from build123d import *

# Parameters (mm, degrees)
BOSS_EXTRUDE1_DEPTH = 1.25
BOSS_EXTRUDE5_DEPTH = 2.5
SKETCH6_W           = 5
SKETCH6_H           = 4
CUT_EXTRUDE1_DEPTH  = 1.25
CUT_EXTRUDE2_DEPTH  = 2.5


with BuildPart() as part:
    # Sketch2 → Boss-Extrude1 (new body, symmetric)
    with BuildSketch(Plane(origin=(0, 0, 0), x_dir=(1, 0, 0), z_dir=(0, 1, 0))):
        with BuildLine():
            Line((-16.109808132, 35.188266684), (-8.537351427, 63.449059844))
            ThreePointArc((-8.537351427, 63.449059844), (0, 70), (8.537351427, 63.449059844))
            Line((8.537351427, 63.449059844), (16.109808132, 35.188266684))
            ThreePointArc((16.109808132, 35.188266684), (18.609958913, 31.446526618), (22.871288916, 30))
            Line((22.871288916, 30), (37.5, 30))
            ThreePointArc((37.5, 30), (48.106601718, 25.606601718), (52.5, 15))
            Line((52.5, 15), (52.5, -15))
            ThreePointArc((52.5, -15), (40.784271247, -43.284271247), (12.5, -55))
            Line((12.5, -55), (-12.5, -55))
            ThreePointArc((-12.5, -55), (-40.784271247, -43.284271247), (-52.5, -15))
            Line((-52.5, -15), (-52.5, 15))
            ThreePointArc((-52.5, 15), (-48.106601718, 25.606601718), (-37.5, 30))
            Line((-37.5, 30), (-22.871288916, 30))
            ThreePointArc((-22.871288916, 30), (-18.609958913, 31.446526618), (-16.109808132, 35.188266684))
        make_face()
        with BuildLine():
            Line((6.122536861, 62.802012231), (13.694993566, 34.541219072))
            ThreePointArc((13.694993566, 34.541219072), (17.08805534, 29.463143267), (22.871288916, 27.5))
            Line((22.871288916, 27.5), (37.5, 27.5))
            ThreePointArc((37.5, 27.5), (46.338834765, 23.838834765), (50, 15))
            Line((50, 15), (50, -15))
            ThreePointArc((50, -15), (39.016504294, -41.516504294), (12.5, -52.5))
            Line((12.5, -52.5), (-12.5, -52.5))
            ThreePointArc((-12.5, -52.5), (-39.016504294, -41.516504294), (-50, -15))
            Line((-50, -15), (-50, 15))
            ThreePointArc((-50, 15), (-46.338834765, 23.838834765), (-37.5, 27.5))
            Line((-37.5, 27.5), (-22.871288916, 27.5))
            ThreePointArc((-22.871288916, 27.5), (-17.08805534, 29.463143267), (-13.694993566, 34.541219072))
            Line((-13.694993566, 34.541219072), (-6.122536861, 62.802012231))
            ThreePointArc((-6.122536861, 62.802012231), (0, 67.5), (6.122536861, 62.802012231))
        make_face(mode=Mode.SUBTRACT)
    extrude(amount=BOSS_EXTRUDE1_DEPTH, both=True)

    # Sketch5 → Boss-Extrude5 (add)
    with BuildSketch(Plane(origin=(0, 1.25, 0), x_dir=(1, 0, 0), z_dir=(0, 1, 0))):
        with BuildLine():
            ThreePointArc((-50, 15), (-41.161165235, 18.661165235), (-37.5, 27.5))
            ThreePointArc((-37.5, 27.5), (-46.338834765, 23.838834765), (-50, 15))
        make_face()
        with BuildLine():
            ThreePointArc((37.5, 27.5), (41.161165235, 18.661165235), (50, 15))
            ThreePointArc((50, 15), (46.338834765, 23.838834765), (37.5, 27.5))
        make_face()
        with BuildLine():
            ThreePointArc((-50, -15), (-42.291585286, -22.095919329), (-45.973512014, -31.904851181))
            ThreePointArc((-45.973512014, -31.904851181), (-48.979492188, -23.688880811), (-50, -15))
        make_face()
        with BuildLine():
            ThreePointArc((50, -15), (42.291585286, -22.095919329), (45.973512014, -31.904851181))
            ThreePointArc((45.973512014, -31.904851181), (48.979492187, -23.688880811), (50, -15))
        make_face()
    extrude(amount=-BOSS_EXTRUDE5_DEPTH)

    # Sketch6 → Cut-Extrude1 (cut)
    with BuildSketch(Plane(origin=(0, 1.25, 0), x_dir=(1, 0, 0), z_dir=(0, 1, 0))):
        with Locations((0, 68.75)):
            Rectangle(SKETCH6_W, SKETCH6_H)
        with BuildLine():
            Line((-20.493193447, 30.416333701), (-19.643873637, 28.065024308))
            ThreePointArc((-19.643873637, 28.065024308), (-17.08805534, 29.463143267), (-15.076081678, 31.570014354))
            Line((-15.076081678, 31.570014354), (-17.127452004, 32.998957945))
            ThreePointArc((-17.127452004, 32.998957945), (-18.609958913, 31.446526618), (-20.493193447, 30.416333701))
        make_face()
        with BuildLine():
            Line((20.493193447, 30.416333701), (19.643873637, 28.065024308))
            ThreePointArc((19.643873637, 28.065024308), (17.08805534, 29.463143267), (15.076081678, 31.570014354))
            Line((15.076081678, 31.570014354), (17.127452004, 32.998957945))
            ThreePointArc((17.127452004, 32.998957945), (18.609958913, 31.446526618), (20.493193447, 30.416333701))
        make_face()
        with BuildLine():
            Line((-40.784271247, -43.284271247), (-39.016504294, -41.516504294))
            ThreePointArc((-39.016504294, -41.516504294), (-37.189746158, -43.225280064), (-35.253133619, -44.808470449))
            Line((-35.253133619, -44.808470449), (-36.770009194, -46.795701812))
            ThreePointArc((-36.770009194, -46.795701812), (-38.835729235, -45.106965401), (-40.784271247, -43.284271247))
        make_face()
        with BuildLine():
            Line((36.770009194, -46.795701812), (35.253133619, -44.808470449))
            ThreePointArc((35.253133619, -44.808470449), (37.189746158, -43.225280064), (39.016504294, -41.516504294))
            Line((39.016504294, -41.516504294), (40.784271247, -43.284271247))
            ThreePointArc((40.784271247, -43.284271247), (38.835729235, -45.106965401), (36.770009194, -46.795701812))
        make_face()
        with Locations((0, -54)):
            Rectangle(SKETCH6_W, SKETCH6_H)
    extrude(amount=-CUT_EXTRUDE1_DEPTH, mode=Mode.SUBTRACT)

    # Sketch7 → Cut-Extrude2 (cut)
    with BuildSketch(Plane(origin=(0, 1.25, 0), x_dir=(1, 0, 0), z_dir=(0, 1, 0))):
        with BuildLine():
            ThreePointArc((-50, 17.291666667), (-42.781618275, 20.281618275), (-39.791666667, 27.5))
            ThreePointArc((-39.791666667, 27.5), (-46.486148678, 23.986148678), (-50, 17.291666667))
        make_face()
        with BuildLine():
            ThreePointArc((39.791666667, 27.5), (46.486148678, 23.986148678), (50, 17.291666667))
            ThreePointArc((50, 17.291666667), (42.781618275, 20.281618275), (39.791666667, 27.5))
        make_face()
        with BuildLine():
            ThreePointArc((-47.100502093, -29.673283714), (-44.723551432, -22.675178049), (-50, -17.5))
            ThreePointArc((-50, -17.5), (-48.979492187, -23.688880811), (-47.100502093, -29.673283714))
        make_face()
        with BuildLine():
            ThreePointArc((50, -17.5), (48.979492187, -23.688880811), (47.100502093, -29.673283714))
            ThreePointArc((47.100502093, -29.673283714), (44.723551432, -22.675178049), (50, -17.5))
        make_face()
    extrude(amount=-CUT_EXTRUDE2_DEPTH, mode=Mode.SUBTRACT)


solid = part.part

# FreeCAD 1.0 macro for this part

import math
import FreeCAD as App
import Part
import Sketcher
Q = App.Units.Quantity


def add_polygon(sketch, points):
    """Adds a closed chain of lines whose ends are joined by coincident constraints."""
    first, n = sketch.GeometryCount, len(points)
    for a, b in zip(points, points[1:] + points[:1]):
        sketch.addGeometry(Part.LineSegment(App.Vector(*a, 0), App.Vector(*b, 0)), False)
    for i in range(n):
        sketch.addConstraint(Sketcher.Constraint("Coincident", first + i, 2, first + (i + 1) % n, 1))

doc = App.newDocument("Part")
body = doc.addObject("PartDesign::Body", "Body")

sketch1 = doc.addObject("Sketcher::SketchObject", "Sketch")
body.addObject(sketch1)
sketch1.AttachmentSupport = (doc.XZ_Plane, [""])
sketch1.MapMode = "FlatFace"
sketch1.addGeometry([
    Part.LineSegment(App.Vector(-9, -63, 0), App.Vector(-16, -35, 0)),
    Part.ArcOfCircle(Part.Circle(App.Vector(-23, -37, 0), App.Vector(0, 0, 1), 7), math.radians(15), math.radians(90)),
    Part.LineSegment(App.Vector(-23, -30, 0), App.Vector(-38, -30, 0)),
    Part.ArcOfCircle(Part.Circle(App.Vector(-38, -15, 0), App.Vector(0, 0, 1), 15), math.radians(180), math.radians(270)),
    Part.LineSegment(App.Vector(-52, -15, 0), App.Vector(-52, 15, 0)),
    Part.ArcOfCircle(Part.Circle(App.Vector(-12, 15, 0), App.Vector(0, 0, 1), 40), math.radians(90), math.radians(180)),
    Part.LineSegment(App.Vector(-12, 55, 0), App.Vector(12, 55, 0)),
    Part.ArcOfCircle(Part.Circle(App.Vector(12, 15, 0), App.Vector(0, 0, 1), 40), math.radians(0), math.radians(90)),
    Part.LineSegment(App.Vector(52, 15, 0), App.Vector(52, -15, 0)),
    Part.ArcOfCircle(Part.Circle(App.Vector(38, -15, 0), App.Vector(0, 0, 1), 15), math.radians(-90), math.radians(0)),
    Part.LineSegment(App.Vector(38, -30, 0), App.Vector(23, -30, 0)),
    Part.ArcOfCircle(Part.Circle(App.Vector(23, -37, 0), App.Vector(0, 0, 1), 7), math.radians(90), math.radians(165)),
    Part.LineSegment(App.Vector(16, -35, 0), App.Vector(9, -63, 0)),
    Part.ArcOfCircle(Part.Circle(App.Vector(0, -61, 0), App.Vector(0, 0, 1), 9), math.radians(-165), math.radians(-15)),
    Part.LineSegment(App.Vector(6, -63, 0), App.Vector(14, -35, 0)),
    Part.ArcOfCircle(Part.Circle(App.Vector(23, -37, 0), App.Vector(0, 0, 1), 9), math.radians(90), math.radians(165)),
    Part.LineSegment(App.Vector(23, -28, 0), App.Vector(38, -28, 0)),
    Part.ArcOfCircle(Part.Circle(App.Vector(38, -15, 0), App.Vector(0, 0, 1), 12), math.radians(-90), math.radians(0)),
    Part.LineSegment(App.Vector(50, -15, 0), App.Vector(50, 15, 0)),
    Part.ArcOfCircle(Part.Circle(App.Vector(12, 15, 0), App.Vector(0, 0, 1), 38), math.radians(0), math.radians(90)),
    Part.LineSegment(App.Vector(12, 52, 0), App.Vector(-12, 52, 0)),
    Part.ArcOfCircle(Part.Circle(App.Vector(-12, 15, 0), App.Vector(0, 0, 1), 38), math.radians(90), math.radians(180)),
    Part.LineSegment(App.Vector(-50, 15, 0), App.Vector(-50, -15, 0)),
    Part.ArcOfCircle(Part.Circle(App.Vector(-38, -15, 0), App.Vector(0, 0, 1), 12), math.radians(180), math.radians(270)),
    Part.LineSegment(App.Vector(-38, -28, 0), App.Vector(-23, -28, 0)),
    Part.ArcOfCircle(Part.Circle(App.Vector(-23, -37, 0), App.Vector(0, 0, 1), 9), math.radians(15), math.radians(90)),
    Part.LineSegment(App.Vector(-14, -35, 0), App.Vector(-6, -63, 0)),
    Part.ArcOfCircle(Part.Circle(App.Vector(0, -61, 0), App.Vector(0, 0, 1), 6), math.radians(-165), math.radians(-15)),
], False)
sketch1.addConstraint([
    Sketcher.Constraint("Tangent", 0, 2, 1, 1),
    Sketcher.Constraint("Tangent", 1, 2, 2, 1),
    Sketcher.Constraint("Tangent", 2, 2, 3, 2),
    Sketcher.Constraint("Tangent", 3, 1, 4, 1),
    Sketcher.Constraint("Tangent", 4, 2, 5, 2),
    Sketcher.Constraint("Tangent", 5, 1, 6, 1),
    Sketcher.Constraint("Tangent", 6, 2, 7, 2),
    Sketcher.Constraint("Tangent", 7, 1, 8, 1),
    Sketcher.Constraint("Tangent", 8, 2, 9, 2),
    Sketcher.Constraint("Tangent", 9, 1, 10, 1),
    Sketcher.Constraint("Tangent", 10, 2, 11, 1),
    Sketcher.Constraint("Tangent", 11, 2, 12, 1),
    Sketcher.Constraint("Tangent", 12, 2, 13, 2),
    Sketcher.Constraint("Tangent", 13, 1, 0, 1),
    Sketcher.Constraint("Tangent", 14, 2, 15, 2),
    Sketcher.Constraint("Tangent", 15, 1, 16, 1),
    Sketcher.Constraint("Tangent", 16, 2, 17, 1),
    Sketcher.Constraint("Tangent", 17, 2, 18, 1),
    Sketcher.Constraint("Tangent", 18, 2, 19, 1),
    Sketcher.Constraint("Tangent", 19, 2, 20, 1),
    Sketcher.Constraint("Tangent", 20, 2, 21, 1),
    Sketcher.Constraint("Tangent", 21, 2, 22, 1),
    Sketcher.Constraint("Tangent", 22, 2, 23, 1),
    Sketcher.Constraint("Tangent", 23, 2, 24, 1),
    Sketcher.Constraint("Tangent", 24, 2, 25, 2),
    Sketcher.Constraint("Tangent", 25, 1, 26, 1),
    Sketcher.Constraint("Tangent", 26, 2, 27, 1),
    Sketcher.Constraint("Tangent", 27, 2, 14, 1),
    Sketcher.Constraint("Horizontal", 2),
    Sketcher.Constraint("Vertical", 4),
    Sketcher.Constraint("Horizontal", 6),
    Sketcher.Constraint("Vertical", 8),
    Sketcher.Constraint("Horizontal", 10),
    Sketcher.Constraint("Horizontal", 16),
    Sketcher.Constraint("Vertical", 18),
    Sketcher.Constraint("Horizontal", 20),
    Sketcher.Constraint("Vertical", 22),
    Sketcher.Constraint("Horizontal", 24),
    Sketcher.Constraint("Coincident", 15, 3, 11, 3),
    Sketcher.Constraint("Coincident", 17, 3, 9, 3),
    Sketcher.Constraint("Coincident", 19, 3, 7, 3),
    Sketcher.Constraint("Coincident", 21, 3, 5, 3),
    Sketcher.Constraint("Coincident", 23, 3, 3, 3),
    Sketcher.Constraint("Coincident", 25, 3, 1, 3),
    Sketcher.Constraint("Coincident", 27, 3, 13, 3),
    Sketcher.Constraint("Equal", 5, 7),
    Sketcher.Constraint("Equal", 3, 9),
    Sketcher.Constraint("Equal", 1, 11),
    Sketcher.Constraint("Symmetric", 3, 1, 7, 1, -1, 1),
    Sketcher.Constraint("Symmetric", 1, 3, 11, 3, -2),
    Sketcher.Constraint("PointOnObject", 13, 3, -2),
    Sketcher.Constraint("Parallel", 12, 14),
    Sketcher.Constraint("Radius", 1, 7.0),
    Sketcher.Constraint("Radius", 3, 15.0),
    Sketcher.Constraint("Radius", 5, 40.0),
    Sketcher.Constraint("Radius", 15, 9.5),
    Sketcher.Constraint("DistanceX", 6, 1, 6, 2, 25.0),
    Sketcher.Constraint("DistanceY", 4, 1, 4, 2, 30.0),
    Sketcher.Constraint("Angle", 0, Q("105 deg")),
    Sketcher.Constraint("Radius", 13, 8.838517),
    Sketcher.Constraint("DistanceX", 2, 2, 2, 1, 14.628711),
])
pad1 = doc.addObject("PartDesign::Pad", "Pad")
body.addObject(pad1)
pad1.Profile = sketch1
pad1.Length = 2.5
pad1.Midplane = True

sketch2 = doc.addObject("Sketcher::SketchObject", "Sketch001")
body.addObject(sketch2)
sketch2.AttachmentSupport = (doc.XZ_Plane, [""])
sketch2.MapMode = "FlatFace"
sketch2.AttachmentOffset = App.Placement(App.Vector(0, 0, -1.25), App.Rotation())
sketch2.addGeometry([
    Part.ArcOfCircle(Part.Circle(App.Vector(-50, -27, 0), App.Vector(0, 0, 1), 12), math.radians(0), math.radians(90)),
    Part.ArcOfCircle(Part.Circle(App.Vector(-38, -15, 0), App.Vector(0, 0, 1), 12), math.radians(180), math.radians(270)),
    Part.ArcOfCircle(Part.Circle(App.Vector(50, -27, 0), App.Vector(0, 0, 1), 12), math.radians(90), math.radians(180)),
    Part.ArcOfCircle(Part.Circle(App.Vector(38, -15, 0), App.Vector(0, 0, 1), 12), math.radians(-90), math.radians(0)),
    Part.ArcOfCircle(Part.Circle(App.Vector(-51, 24, 0), App.Vector(0, 0, 1), 9), math.radians(-81), math.radians(55)),
    Part.ArcOfCircle(Part.Circle(App.Vector(-13, 15, 0), App.Vector(0, 0, 1), 37), math.radians(153), math.radians(180)),
    Part.ArcOfCircle(Part.Circle(App.Vector(51, 24, 0), App.Vector(0, 0, 1), 9), math.radians(125), math.radians(261)),
    Part.ArcOfCircle(Part.Circle(App.Vector(12, 15, 0), App.Vector(0, 0, 1), 38), math.radians(0), math.radians(27)),
], False)
sketch2.addConstraint([
    Sketcher.Constraint("Coincident", 0, 1, 1, 2),
    Sketcher.Constraint("Coincident", 1, 1, 0, 2),
    Sketcher.Constraint("Coincident", 2, 1, 3, 2),
    Sketcher.Constraint("Coincident", 3, 1, 2, 2),
    Sketcher.Constraint("Coincident", 4, 1, 5, 2),
    Sketcher.Constraint("Coincident", 5, 1, 4, 2),
    Sketcher.Constraint("Coincident", 6, 1, 7, 2),
    Sketcher.Constraint("Coincident", 7, 1, 6, 2),
    Sketcher.Constraint("Equal", 0, 1),
    Sketcher.Constraint("Equal", 1, 2),
    Sketcher.Constraint("Equal", 2, 3),
    Sketcher.Constraint("Equal", 4, 6),
    Sketcher.Constraint("Equal", 5, 7),
    Sketcher.Constraint("Symmetric", 2, 1, 4, 1, -1, 1),
    Sketcher.Constraint("Symmetric", 1, 1, 7, 1, -1, 1),
    Sketcher.Constraint("Symmetric", 0, 3, 2, 3, -2),
    Sketcher.Constraint("Symmetric", 1, 3, 3, 3, -2),
    Sketcher.Constraint("Symmetric", 5, 1, 6, 1, -2),
    Sketcher.Constraint("Horizontal", 2, 3, 0, 1),
    Sketcher.Constraint("Horizontal", 7, 3, 4, 1),
    Sketcher.Constraint("Vertical", 1, 3, 0, 1),
    Sketcher.Constraint("Radius", 0, 12.5),
    Sketcher.Constraint("Radius", 5, 37.5),
    Sketcher.Constraint("DistanceX", 0, 3, -1, 1, 50.0),
    Sketcher.Constraint("DistanceY", 1, 3, -1, 1, 15.0),
    Sketcher.Constraint("Radius", 4, 9.375),
    Sketcher.Constraint("DistanceX", 4, 3, -1, 1, 51.411458),
])
pad2 = doc.addObject("PartDesign::Pad", "Pad001")
body.addObject(pad2)
pad2.Profile = sketch2
pad2.Length = 2.5

sketch3 = doc.addObject("Sketcher::SketchObject", "Sketch002")
body.addObject(sketch3)
sketch3.AttachmentSupport = (doc.XZ_Plane, [""])
sketch3.MapMode = "FlatFace"
sketch3.AttachmentOffset = App.Placement(App.Vector(0, 0, -1.25), App.Rotation())
add_polygon(sketch3, [(-2.5, -70.8), (-2.5, -66.8), (2.5, -66.8), (2.5, -70.8)])
sketch3.addGeometry(Part.LineSegment(App.Vector(-20.5, -30.4, 0), App.Vector(-19.6, -28.1, 0)), False)
sketch3.addGeometry(Part.ArcOfCircle(Part.Circle(App.Vector(-22.9, -37, 0), App.Vector(0, 0, 1), 9.5), math.radians(35), math.radians(70)), False)
sketch3.addGeometry(Part.LineSegment(App.Vector(-15.1, -31.6, 0), App.Vector(-17.1, -33, 0)), False)
sketch3.addGeometry(Part.ArcOfCircle(Part.Circle(App.Vector(-22.9, -37, 0), App.Vector(0, 0, 1), 7), math.radians(35), math.radians(70)), False)
sketch3.addGeometry(Part.LineSegment(App.Vector(19.6, -28.1, 0), App.Vector(20.5, -30.4, 0)), False)
sketch3.addGeometry(Part.ArcOfCircle(Part.Circle(App.Vector(22.9, -37, 0), App.Vector(0, 0, 1), 7), math.radians(110), math.radians(145)), False)
sketch3.addGeometry(Part.LineSegment(App.Vector(17.1, -33, 0), App.Vector(15.1, -31.6, 0)), False)
sketch3.addGeometry(Part.ArcOfCircle(Part.Circle(App.Vector(22.9, -37, 0), App.Vector(0, 0, 1), 9.5), math.radians(110), math.radians(145)), False)
sketch3.addGeometry(Part.LineSegment(App.Vector(-39, 41.5, 0), App.Vector(-40.8, 43.3, 0)), False)
sketch3.addGeometry(Part.ArcOfCircle(Part.Circle(App.Vector(-12.5, 15, 0), App.Vector(0, 0, 1), 40), math.radians(127.35), math.radians(135)), False)
sketch3.addGeometry(Part.LineSegment(App.Vector(-36.8, 46.8, 0), App.Vector(-35.3, 44.8, 0)), False)
sketch3.addGeometry(Part.ArcOfCircle(Part.Circle(App.Vector(-12.5, 15, 0), App.Vector(0, 0, 1), 37.5), math.radians(127.35), math.radians(135)), False)
sketch3.addGeometry(Part.LineSegment(App.Vector(35.3, 44.8, 0), App.Vector(36.8, 46.8, 0)), False)
sketch3.addGeometry(Part.ArcOfCircle(Part.Circle(App.Vector(12.5, 15, 0), App.Vector(0, 0, 1), 40), math.radians(45), math.radians(52.65)), False)
sketch3.addGeometry(Part.LineSegment(App.Vector(40.8, 43.3, 0), App.Vector(39, 41.5, 0)), False)
sketch3.addGeometry(Part.ArcOfCircle(Part.Circle(App.Vector(12.5, 15, 0), App.Vector(0, 0, 1), 37.5), math.radians(45), math.radians(52.65)), False)
add_polygon(sketch3, [(-2.5, 52), (-2.5, 56), (2.5, 56), (2.5, 52)])
sketch3.addConstraint([
    Sketcher.Constraint("Coincident", 4, 2, 5, 2),
    Sketcher.Constraint("Coincident", 5, 1, 6, 1),
    Sketcher.Constraint("Coincident", 6, 2, 7, 1),
    Sketcher.Constraint("Coincident", 7, 2, 4, 1),
    Sketcher.Constraint("Coincident", 8, 2, 9, 1),
    Sketcher.Constraint("Coincident", 9, 2, 10, 1),
    Sketcher.Constraint("Coincident", 10, 2, 11, 2),
    Sketcher.Constraint("Coincident", 11, 1, 8, 1),
    Sketcher.Constraint("Coincident", 12, 2, 13, 2),
    Sketcher.Constraint("Coincident", 13, 1, 14, 1),
    Sketcher.Constraint("Coincident", 14, 2, 15, 1),
    Sketcher.Constraint("Coincident", 15, 2, 12, 1),
    Sketcher.Constraint("Coincident", 16, 2, 17, 2),
    Sketcher.Constraint("Coincident", 17, 1, 18, 1),
    Sketcher.Constraint("Coincident", 18, 2, 19, 1),
    Sketcher.Constraint("Coincident", 19, 2, 16, 1),
    Sketcher.Constraint("Vertical", 0),
    Sketcher.Constraint("Horizontal", 1),
    Sketcher.Constraint("Vertical", 2),
    Sketcher.Constraint("Horizontal", 3),
    Sketcher.Constraint("Vertical", 20),
    Sketcher.Constraint("Horizontal", 21),
    Sketcher.Constraint("Vertical", 22),
    Sketcher.Constraint("Horizontal", 23),
    Sketcher.Constraint("Coincident", 7, 3, 5, 3),
    Sketcher.Constraint("Coincident", 11, 3, 9, 3),
    Sketcher.Constraint("Coincident", 15, 3, 13, 3),
    Sketcher.Constraint("Coincident", 19, 3, 17, 3),
    Sketcher.Constraint("Equal", 7, 9),
    Sketcher.Constraint("Equal", 5, 11),
    Sketcher.Constraint("Equal", 13, 17),
    Sketcher.Constraint("Equal", 15, 19),
    Sketcher.Constraint("Symmetric", 5, 3, 9, 3, -2),
    Sketcher.Constraint("Symmetric", 13, 3, 17, 3, -2),
    Sketcher.Constraint("Perpendicular", 12, 18),
    Sketcher.Constraint("Horizontal", 7, 2, 8, 2),
    Sketcher.Constraint("Horizontal", 6, 2, 9, 2),
    Sketcher.Constraint("Horizontal", 5, 1, 10, 2),
    Sketcher.Constraint("Horizontal", 4, 2, 11, 1),
    Sketcher.Constraint("Horizontal", 13, 1, 16, 2),
    Sketcher.Constraint("Horizontal", 12, 2, 17, 1),
    Sketcher.Constraint("Horizontal", 15, 2, 18, 2),
    Sketcher.Constraint("Horizontal", 14, 2, 19, 2),
    Sketcher.Constraint("Vertical", 3, 2, 20, 2),
    Sketcher.Constraint("Vertical", 2, 2, 21, 2),
    Sketcher.Constraint("Equal", 2, 20),
    Sketcher.Constraint("Equal", 10, 12),
    Sketcher.Constraint("Radius", 7, 7.0),
    Sketcher.Constraint("Radius", 13, 40.0),
    Sketcher.Constraint("Radius", 5, 9.5),
    Sketcher.Constraint("DistanceX", 1, 1, 1, 2, 5.0),
    Sketcher.Constraint("DistanceY", 0, 1, 0, 2, 4.0),
    Sketcher.Constraint("DistanceY", 5, 3, -1, 1, 37.0),
    Sketcher.Constraint("DistanceY", -1, 1, 13, 3, 15.0),
    Sketcher.Constraint("DistanceY", -1, 1, 20, 2, 56.0),
    Sketcher.Constraint("DistanceX", 13, 3, 17, 3, 25.0),
    Sketcher.Constraint("DistanceX", 13, 3, 0, 2, 10.0),
    Sketcher.Constraint("DistanceY", 0, 2, -1, 1, 66.75),
    Sketcher.Constraint("DistanceY", -1, 1, 13, 1, 46.795702),
    Sketcher.Constraint("DistanceY", 12, 2, 14, 2, 1.524199),
    Sketcher.Constraint("DistanceX", 5, 3, -1, 1, 22.871289),
    Sketcher.Constraint("DistanceX", 5, 1, -1, 1, 15.076082),
    Sketcher.Constraint("DistanceX", 12, 2, -1, 1, 40.784271),
    Sketcher.Constraint("DistanceX", 4, 2, 5, 1, 4.567792),
    Sketcher.Constraint("DistanceX", 6, 2, 5, 1, 2.05137),
    Sketcher.Constraint("DistanceX", 7, 2, 4, 2, 0.84932),
])
pocket1 = doc.addObject("PartDesign::Pocket", "Pocket")
body.addObject(pocket1)
pocket1.Profile = sketch3
pocket1.Length = 1.25
pocket1.Reversed = True

sketch4 = doc.addObject("Sketcher::SketchObject", "Sketch003")
body.addObject(sketch4)
sketch4.AttachmentSupport = (doc.XZ_Plane, [""])
sketch4.MapMode = "FlatFace"
sketch4.AttachmentOffset = App.Placement(App.Vector(0, 0, -1.25), App.Rotation())
sketch4.addGeometry([
    Part.ArcOfCircle(Part.Circle(App.Vector(-50, -27, 0), App.Vector(0, 0, 1), 10), math.radians(0), math.radians(90)),
    Part.ArcOfCircle(Part.Circle(App.Vector(-38, -15, 0), App.Vector(0, 0, 1), 13), math.radians(-170), math.radians(-100)),
    Part.ArcOfCircle(Part.Circle(App.Vector(38, -15, 0), App.Vector(0, 0, 1), 13), math.radians(-80), math.radians(-10)),
    Part.ArcOfCircle(Part.Circle(App.Vector(50, -27, 0), App.Vector(0, 0, 1), 10), math.radians(90), math.radians(180)),
    Part.ArcOfCircle(Part.Circle(App.Vector(-51, 24, 0), App.Vector(0, 0, 1), 7), math.radians(-78), math.radians(51)),
    Part.ArcOfCircle(Part.Circle(App.Vector(-6, 13, 0), App.Vector(0, 0, 1), 45), math.radians(158.53), math.radians(174.67)),
    Part.ArcOfCircle(Part.Circle(App.Vector(6, 13, 0), App.Vector(0, 0, 1), 45), math.radians(5.33), math.radians(21.47)),
    Part.ArcOfCircle(Part.Circle(App.Vector(51, 24, 0), App.Vector(0, 0, 1), 7), math.radians(129), math.radians(258)),
], False)
sketch4.addConstraint([
    Sketcher.Constraint("Coincident", 0, 1, 1, 2),
    Sketcher.Constraint("Coincident", 1, 1, 0, 2),
    Sketcher.Constraint("Coincident", 2, 1, 3, 2),
    Sketcher.Constraint("Coincident", 3, 1, 2, 2),
    Sketcher.Constraint("Coincident", 4, 1, 5, 2),
    Sketcher.Constraint("Coincident", 5, 1, 4, 2),
    Sketcher.Constraint("Coincident", 6, 1, 7, 2),
    Sketcher.Constraint("Coincident", 7, 1, 6, 2),
    Sketcher.Constraint("Equal", 1, 2),
    Sketcher.Constraint("Equal", 0, 3),
    Sketcher.Constraint("Equal", 5, 6),
    Sketcher.Constraint("Equal", 4, 7),
    Sketcher.Constraint("Symmetric", 1, 3, 2, 3, -2),
    Sketcher.Constraint("Symmetric", 0, 3, 3, 3, -2),
    Sketcher.Constraint("Symmetric", 5, 3, 6, 3, -2),
    Sketcher.Constraint("Symmetric", 4, 3, 7, 3, -2),
    Sketcher.Constraint("Horizontal", 3, 3, 0, 1),
    Sketcher.Constraint("Vertical", 0, 3, 1, 1),
    Sketcher.Constraint("Vertical", 1, 1, 4, 1),
    Sketcher.Constraint("DistanceX", 0, 3, -1, 1, 50.0),
    Sketcher.Constraint("DistanceY", 1, 3, -1, 1, 15.0),
    Sketcher.Constraint("DistanceX", 1, 3, 2, 3, 75.0),
    Sketcher.Constraint("DistanceY", 0, 3, 4, 1, 45.0),
    Sketcher.Constraint("Radius", 0, 10.208333),
    Sketcher.Constraint("Radius", 4, 6.942913),
    Sketcher.Constraint("Radius", 5, 44.582168),
    Sketcher.Constraint("DistanceX", 4, 3, 5, 3, 45.86696),
    Sketcher.Constraint("DistanceY", 5, 3, 4, 3, 10.924838),
])
pocket2 = doc.addObject("PartDesign::Pocket", "Pocket001")
body.addObject(pocket2)
pocket2.Profile = sketch4
pocket2.Length = 2.5
pocket2.Reversed = True

doc.recompute()
